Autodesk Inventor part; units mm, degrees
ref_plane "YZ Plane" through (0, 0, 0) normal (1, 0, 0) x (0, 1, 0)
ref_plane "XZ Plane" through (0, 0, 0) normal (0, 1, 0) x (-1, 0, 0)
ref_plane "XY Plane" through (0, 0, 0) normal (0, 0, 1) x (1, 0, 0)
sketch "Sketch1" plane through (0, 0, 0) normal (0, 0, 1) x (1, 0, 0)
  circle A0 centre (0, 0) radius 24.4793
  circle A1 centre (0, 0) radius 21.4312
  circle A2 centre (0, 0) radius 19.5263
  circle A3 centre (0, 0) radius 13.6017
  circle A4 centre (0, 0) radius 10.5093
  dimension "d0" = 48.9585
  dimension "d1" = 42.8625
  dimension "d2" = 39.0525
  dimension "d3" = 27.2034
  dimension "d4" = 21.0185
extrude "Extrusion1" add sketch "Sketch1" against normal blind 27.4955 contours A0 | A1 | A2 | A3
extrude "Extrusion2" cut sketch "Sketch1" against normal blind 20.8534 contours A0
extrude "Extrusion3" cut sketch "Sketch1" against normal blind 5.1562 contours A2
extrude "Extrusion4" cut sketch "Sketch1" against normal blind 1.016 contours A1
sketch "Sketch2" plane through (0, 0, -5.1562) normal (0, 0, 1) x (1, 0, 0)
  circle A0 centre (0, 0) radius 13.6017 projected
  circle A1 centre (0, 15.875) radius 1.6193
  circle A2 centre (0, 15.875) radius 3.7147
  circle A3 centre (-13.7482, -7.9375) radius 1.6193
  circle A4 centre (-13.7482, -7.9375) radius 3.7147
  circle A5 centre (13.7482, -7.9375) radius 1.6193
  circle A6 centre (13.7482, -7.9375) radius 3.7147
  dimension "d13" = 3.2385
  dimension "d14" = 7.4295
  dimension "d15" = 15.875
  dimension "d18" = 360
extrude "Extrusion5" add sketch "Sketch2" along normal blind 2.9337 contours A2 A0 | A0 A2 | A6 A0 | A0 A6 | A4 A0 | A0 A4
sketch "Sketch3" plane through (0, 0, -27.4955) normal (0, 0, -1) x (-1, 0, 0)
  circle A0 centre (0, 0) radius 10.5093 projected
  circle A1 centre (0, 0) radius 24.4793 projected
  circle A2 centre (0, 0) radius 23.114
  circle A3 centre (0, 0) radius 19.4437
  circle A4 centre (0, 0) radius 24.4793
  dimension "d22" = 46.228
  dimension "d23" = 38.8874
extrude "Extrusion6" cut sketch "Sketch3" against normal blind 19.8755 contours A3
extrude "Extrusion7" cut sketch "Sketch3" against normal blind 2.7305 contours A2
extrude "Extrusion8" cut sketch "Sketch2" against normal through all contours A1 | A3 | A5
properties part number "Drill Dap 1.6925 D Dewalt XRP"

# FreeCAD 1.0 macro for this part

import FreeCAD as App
import Part
import Sketcher
from FreeCAD import Vector
Q = App.Units.Quantity

doc = App.newDocument("Part")
body = doc.addObject("PartDesign::Body", "Body")

# Sketch on XY plane
sketch1 = doc.addObject("Sketcher::SketchObject", "Sketch")
body.addObject(sketch1)
sketch1.AttachmentSupport = (doc.XY_Plane, [""])
sketch1.MapMode = "FlatFace"
sketch1.addGeometry(Part.Circle(Vector(0, 0, 0), Vector(0, 0, 1), 24.4793), False)
sketch1.addGeometry(Part.Circle(Vector(0, 0, 0), Vector(0, 0, 1), 10.5093), False)
sketch1.addConstraint(Sketcher.Constraint("Coincident", 0, 3, -1, 1))
sketch1.addConstraint(Sketcher.Constraint("Coincident", 1, 3, -1, 1))
sketch1.addConstraint(Sketcher.Constraint("Diameter", 0, Q("1.9275 in")))
sketch1.addConstraint(Sketcher.Constraint("Diameter", 1, Q("0.8275 in")))
pad1 = doc.addObject("PartDesign::Pad", "Pad")
body.addObject(pad1)
pad1.Profile = sketch1
pad1.Length = Q("1.0825 in")
pad1.Reversed = True

# Sketch on XY plane
sketch2 = doc.addObject("Sketcher::SketchObject", "Sketch001")
body.addObject(sketch2)
sketch2.AttachmentSupport = (doc.XY_Plane, [""])
sketch2.MapMode = "FlatFace"
sketch2.addGeometry(Part.Circle(Vector(0, 0, 0), Vector(0, 0, 1), 24.4793), False)
sketch2.addGeometry(Part.Circle(Vector(0, 0, 0), Vector(0, 0, 1), 21.4312), False)
sketch2.addConstraint(Sketcher.Constraint("Coincident", 0, 3, -1, 1))
sketch2.addConstraint(Sketcher.Constraint("Coincident", 1, 3, -1, 1))
sketch2.addConstraint(Sketcher.Constraint("Diameter", 1, Q("1.6875 in")))
sketch2.addConstraint(Sketcher.Constraint("Diameter", 0, Q("1.9275 in")))
pocket1 = doc.addObject("PartDesign::Pocket", "Pocket")
body.addObject(pocket1)
pocket1.Profile = sketch2
pocket1.Length = Q("0.821 in")

# Sketch on XY plane
sketch3 = doc.addObject("Sketcher::SketchObject", "Sketch002")
body.addObject(sketch3)
sketch3.AttachmentSupport = (doc.XY_Plane, [""])
sketch3.MapMode = "FlatFace"
sketch3.addGeometry(Part.Circle(Vector(0, 0, 0), Vector(0, 0, 1), 19.5263), False)
sketch3.addGeometry(Part.Circle(Vector(0, 0, 0), Vector(0, 0, 1), 13.6017), False)
sketch3.addConstraint(Sketcher.Constraint("Coincident", 0, 3, -1, 1))
sketch3.addConstraint(Sketcher.Constraint("Coincident", 1, 3, -1, 1))
sketch3.addConstraint(Sketcher.Constraint("Diameter", 1, Q("1.071 in")))
sketch3.addConstraint(Sketcher.Constraint("Diameter", 0, Q("1.5375 in")))
pocket2 = doc.addObject("PartDesign::Pocket", "Pocket001")
body.addObject(pocket2)
pocket2.Profile = sketch3
pocket2.Length = Q("0.203 in")

# Sketch on XY plane
sketch4 = doc.addObject("Sketcher::SketchObject", "Sketch003")
body.addObject(sketch4)
sketch4.AttachmentSupport = (doc.XY_Plane, [""])
sketch4.MapMode = "FlatFace"
sketch4.addGeometry(Part.Circle(Vector(0, 0, 0), Vector(0, 0, 1), 21.4312), False)
sketch4.addGeometry(Part.Circle(Vector(0, 0, 0), Vector(0, 0, 1), 19.5263), False)
sketch4.addConstraint(Sketcher.Constraint("Coincident", 0, 3, -1, 1))
sketch4.addConstraint(Sketcher.Constraint("Coincident", 1, 3, -1, 1))
sketch4.addConstraint(Sketcher.Constraint("Diameter", 0, Q("1.6875 in")))
sketch4.addConstraint(Sketcher.Constraint("Diameter", 1, Q("1.5375 in")))
pocket3 = doc.addObject("PartDesign::Pocket", "Pocket002")
body.addObject(pocket3)
pocket3.Profile = sketch4
pocket3.Length = Q("0.04 in")

# Sketch on XY plane
sketch5 = doc.addObject("Sketcher::SketchObject", "Sketch004")
body.addObject(sketch5)
sketch5.AttachmentSupport = (doc.XY_Plane, [""])
sketch5.MapMode = "FlatFace"
sketch5.AttachmentOffset = App.Placement(Vector(0, 0, -0.203 * 25.4), App.Rotation())
sketch5.addGeometry(Part.Circle(Vector(0, 15.875, 0), Vector(0, 0, 1), 3.7147), False)
sketch5.addGeometry(Part.Circle(Vector(0, 15.875, 0), Vector(0, 0, 1), 1.6193), False)
sketch5.addGeometry(Part.Circle(Vector(13.7482, -7.9375, 0), Vector(0, 0, 1), 3.7147), False)
sketch5.addGeometry(Part.Circle(Vector(13.7482, -7.9375, 0), Vector(0, 0, 1), 1.6193), False)
sketch5.addGeometry(Part.Circle(Vector(-13.7482, -7.9375, 0), Vector(0, 0, 1), 3.7147), False)
sketch5.addGeometry(Part.Circle(Vector(-13.7482, -7.9375, 0), Vector(0, 0, 1), 1.6193), False)
sketch5.addConstraint(Sketcher.Constraint("Coincident", 1, 3, 0, 3))
sketch5.addConstraint(Sketcher.Constraint("Coincident", 3, 3, 2, 3))
sketch5.addConstraint(Sketcher.Constraint("Coincident", 5, 3, 4, 3))
sketch5.addConstraint(Sketcher.Constraint("Equal", 0, 2))
sketch5.addConstraint(Sketcher.Constraint("Equal", 1, 3))
sketch5.addConstraint(Sketcher.Constraint("Equal", 2, 4))
sketch5.addConstraint(Sketcher.Constraint("Equal", 3, 5))
sketch5.addConstraint(Sketcher.Constraint("Symmetric", 2, 3, 4, 3, -2))
sketch5.addConstraint(Sketcher.Constraint("PointOnObject", 0, 3, -2))
sketch5.addConstraint(Sketcher.Constraint("Diameter", 0, Q("0.2925 in")))
sketch5.addConstraint(Sketcher.Constraint("Diameter", 1, Q("0.1275 in")))
sketch5.addConstraint(Sketcher.Constraint("DistanceY", -1, 1, 0, 3, Q("0.625 in")))
sketch5.addConstraint(Sketcher.Constraint("DistanceY", 2, 3, -1, 1, Q("0.3125 in")))
sketch5.addConstraint(Sketcher.Constraint("DistanceX", -1, 1, 2, 3, Q("13.7482 mm")))
pad2 = doc.addObject("PartDesign::Pad", "Pad001")
body.addObject(pad2)
pad2.Profile = sketch5
pad2.Length = Q("0.1155 in")

# Sketch on XY plane
sketch6 = doc.addObject("Sketcher::SketchObject", "Sketch005")
body.addObject(sketch6)
sketch6.AttachmentSupport = (doc.XY_Plane, [""])
sketch6.MapMode = "FlatFace"
sketch6.AttachmentOffset = App.Placement(Vector(0, 0, -1.0825 * 25.4), App.Rotation())
sketch6.addGeometry(Part.Circle(Vector(0, 0, 0), Vector(0, 0, 1), 19.4437), False)
sketch6.addGeometry(Part.Circle(Vector(0, 0, 0), Vector(0, 0, 1), 10.5093), False)
sketch6.addConstraint(Sketcher.Constraint("Coincident", 0, 3, -1, 1))
sketch6.addConstraint(Sketcher.Constraint("Coincident", 1, 3, -1, 1))
sketch6.addConstraint(Sketcher.Constraint("Diameter", 0, Q("1.531 in")))
sketch6.addConstraint(Sketcher.Constraint("Diameter", 1, Q("0.8275 in")))
pocket4 = doc.addObject("PartDesign::Pocket", "Pocket003")
body.addObject(pocket4)
pocket4.Profile = sketch6
pocket4.Length = Q("0.7825 in")
pocket4.Reversed = True

# Sketch on XY plane
sketch7 = doc.addObject("Sketcher::SketchObject", "Sketch006")
body.addObject(sketch7)
sketch7.AttachmentSupport = (doc.XY_Plane, [""])
sketch7.MapMode = "FlatFace"
sketch7.AttachmentOffset = App.Placement(Vector(0, 0, -1.0825 * 25.4), App.Rotation())
sketch7.addGeometry(Part.Circle(Vector(0, 0, 0), Vector(0, 0, 1), 23.114), False)
sketch7.addGeometry(Part.Circle(Vector(0, 0, 0), Vector(0, 0, 1), 19.4437), False)
sketch7.addConstraint(Sketcher.Constraint("Coincident", 0, 3, -1, 1))
sketch7.addConstraint(Sketcher.Constraint("Coincident", 1, 3, -1, 1))
sketch7.addConstraint(Sketcher.Constraint("Diameter", 0, Q("1.82 in")))
sketch7.addConstraint(Sketcher.Constraint("Diameter", 1, Q("1.531 in")))
pocket5 = doc.addObject("PartDesign::Pocket", "Pocket004")
body.addObject(pocket5)
pocket5.Profile = sketch7
pocket5.Length = Q("0.1075 in")
pocket5.Reversed = True

# Sketch on XY plane
sketch8 = doc.addObject("Sketcher::SketchObject", "Sketch007")
body.addObject(sketch8)
sketch8.AttachmentSupport = (doc.XY_Plane, [""])
sketch8.MapMode = "FlatFace"
sketch8.AttachmentOffset = App.Placement(Vector(0, 0, -0.203 * 25.4), App.Rotation())
sketch8.addGeometry(Part.Circle(Vector(0, 15.875, 0), Vector(0, 0, 1), 1.6193), False)
sketch8.addGeometry(Part.Circle(Vector(-13.7482, -7.9375, 0), Vector(0, 0, 1), 1.6193), False)
sketch8.addGeometry(Part.Circle(Vector(13.7482, -7.9375, 0), Vector(0, 0, 1), 1.6193), False)
sketch8.addConstraint(Sketcher.Constraint("Equal", 0, 1))
sketch8.addConstraint(Sketcher.Constraint("Equal", 1, 2))
sketch8.addConstraint(Sketcher.Constraint("Symmetric", 1, 3, 2, 3, -2))
sketch8.addConstraint(Sketcher.Constraint("PointOnObject", 0, 3, -2))
sketch8.addConstraint(Sketcher.Constraint("Diameter", 0, Q("0.1275 in")))
sketch8.addConstraint(Sketcher.Constraint("DistanceY", -1, 1, 0, 3, Q("0.625 in")))
sketch8.addConstraint(Sketcher.Constraint("DistanceY", 1, 3, -1, 1, Q("0.3125 in")))
sketch8.addConstraint(Sketcher.Constraint("DistanceX", 1, 3, -1, 1, Q("13.7482 mm")))
pocket6 = doc.addObject("PartDesign::Pocket", "Pocket005")
body.addObject(pocket6)
pocket6.Profile = sketch8
pocket6.Type = "ThroughAll"

doc.recompute()
